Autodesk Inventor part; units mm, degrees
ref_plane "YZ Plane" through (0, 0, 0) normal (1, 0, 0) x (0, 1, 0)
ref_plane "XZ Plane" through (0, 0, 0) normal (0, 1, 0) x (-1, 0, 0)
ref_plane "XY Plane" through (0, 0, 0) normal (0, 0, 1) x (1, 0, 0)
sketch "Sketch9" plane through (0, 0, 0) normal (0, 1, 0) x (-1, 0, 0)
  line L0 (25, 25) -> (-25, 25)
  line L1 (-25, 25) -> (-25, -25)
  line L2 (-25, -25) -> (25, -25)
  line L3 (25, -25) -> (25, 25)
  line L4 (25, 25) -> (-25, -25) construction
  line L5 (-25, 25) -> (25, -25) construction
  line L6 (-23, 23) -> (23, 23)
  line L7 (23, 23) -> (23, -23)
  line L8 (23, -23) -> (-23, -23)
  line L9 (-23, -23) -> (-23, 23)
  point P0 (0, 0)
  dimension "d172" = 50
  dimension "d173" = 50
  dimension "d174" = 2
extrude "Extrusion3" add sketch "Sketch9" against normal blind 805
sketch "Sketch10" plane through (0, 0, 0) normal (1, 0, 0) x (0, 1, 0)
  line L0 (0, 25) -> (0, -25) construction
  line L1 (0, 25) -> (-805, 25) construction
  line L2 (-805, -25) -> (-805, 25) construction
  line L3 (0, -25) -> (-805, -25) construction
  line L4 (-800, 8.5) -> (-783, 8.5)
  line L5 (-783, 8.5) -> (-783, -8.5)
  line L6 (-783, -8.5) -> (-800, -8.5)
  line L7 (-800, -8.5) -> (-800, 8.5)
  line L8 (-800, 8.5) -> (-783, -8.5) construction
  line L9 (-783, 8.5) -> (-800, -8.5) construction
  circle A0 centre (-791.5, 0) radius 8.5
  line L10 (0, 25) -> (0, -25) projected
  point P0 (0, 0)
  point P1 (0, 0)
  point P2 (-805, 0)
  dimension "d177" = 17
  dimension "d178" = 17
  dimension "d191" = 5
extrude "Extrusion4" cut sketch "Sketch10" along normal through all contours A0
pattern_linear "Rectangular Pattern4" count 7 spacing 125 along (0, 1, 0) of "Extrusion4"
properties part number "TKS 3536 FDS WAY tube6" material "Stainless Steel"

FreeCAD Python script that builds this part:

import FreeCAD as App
import Part
import Sketcher


def add_polygon(sketch, points):
    """Adds a closed chain of lines whose ends are joined by coincident constraints."""
    first, n = sketch.GeometryCount, len(points)
    for a, b in zip(points, points[1:] + points[:1]):
        sketch.addGeometry(Part.LineSegment(App.Vector(*a, 0), App.Vector(*b, 0)), False)
    for i in range(n):
        sketch.addConstraint(Sketcher.Constraint("Coincident", first + i, 2, first + (i + 1) % n, 1))

doc = App.newDocument("Part")
body = doc.addObject("PartDesign::Body", "Body")

sketch1 = doc.addObject("Sketcher::SketchObject", "Sketch")
body.addObject(sketch1)
sketch1.AttachmentSupport = (doc.XZ_Plane, [""])
sketch1.MapMode = "FlatFace"
add_polygon(sketch1, [(-25, -25), (-25, 25), (25, 25), (25, -25)])
add_polygon(sketch1, [(23, -23), (23, 23), (-23, 23), (-23, -23)])
sketch1.addConstraint([
    Sketcher.Constraint("Vertical", 0),
    Sketcher.Constraint("Horizontal", 1),
    Sketcher.Constraint("Vertical", 2),
    Sketcher.Constraint("Horizontal", 3),
    Sketcher.Constraint("Vertical", 4),
    Sketcher.Constraint("Horizontal", 5),
    Sketcher.Constraint("Vertical", 6),
    Sketcher.Constraint("Horizontal", 7),
    Sketcher.Constraint("Symmetric", 0, 2, 2, 2, -1, 1),
    Sketcher.Constraint("Symmetric", 4, 2, 6, 2, -1, 1),
    Sketcher.Constraint("Equal", 3, 0),
    Sketcher.Constraint("Equal", 7, 4),
    Sketcher.Constraint("DistanceX", 1, 1, 1, 2, 50.0),
    Sketcher.Constraint("DistanceX", 4, 2, 1, 2, 2.0),
])
pad1 = doc.addObject("PartDesign::Pad", "Pad")
body.addObject(pad1)
pad1.Profile = sketch1
pad1.Length = 805

sketch2 = doc.addObject("Sketcher::SketchObject", "Sketch001")
body.addObject(sketch2)
sketch2.AttachmentSupport = (doc.YZ_Plane, [""])
sketch2.MapMode = "FlatFace"
sketch2.addGeometry(Part.Circle(App.Vector(-792, 0, 0), App.Vector(0, 0, 1), 8), False)
sketch2.addConstraint([
    Sketcher.Constraint("PointOnObject", 0, 3, -1),
    Sketcher.Constraint("Diameter", 0, 17.0),
    Sketcher.Constraint("DistanceX", 0, 3, -1, 1, 791.5),
])
pocket1 = doc.addObject("PartDesign::Pocket", "Pocket")
body.addObject(pocket1)
pocket1.Profile = sketch2
pocket1.Type = "ThroughAll"
pocket1.Reversed = True
doc.recompute()

linearpattern = doc.addObject("PartDesign::LinearPattern", "LinearPattern")
body.addObject(linearpattern)
linearpattern.Originals = [pocket1]
linearpattern.Direction = (doc.Y_Axis, [""])
linearpattern.Mode = "offset"
linearpattern.Offset = 125
linearpattern.Occurrences = 7
body.Tip = linearpattern

doc.recompute()
